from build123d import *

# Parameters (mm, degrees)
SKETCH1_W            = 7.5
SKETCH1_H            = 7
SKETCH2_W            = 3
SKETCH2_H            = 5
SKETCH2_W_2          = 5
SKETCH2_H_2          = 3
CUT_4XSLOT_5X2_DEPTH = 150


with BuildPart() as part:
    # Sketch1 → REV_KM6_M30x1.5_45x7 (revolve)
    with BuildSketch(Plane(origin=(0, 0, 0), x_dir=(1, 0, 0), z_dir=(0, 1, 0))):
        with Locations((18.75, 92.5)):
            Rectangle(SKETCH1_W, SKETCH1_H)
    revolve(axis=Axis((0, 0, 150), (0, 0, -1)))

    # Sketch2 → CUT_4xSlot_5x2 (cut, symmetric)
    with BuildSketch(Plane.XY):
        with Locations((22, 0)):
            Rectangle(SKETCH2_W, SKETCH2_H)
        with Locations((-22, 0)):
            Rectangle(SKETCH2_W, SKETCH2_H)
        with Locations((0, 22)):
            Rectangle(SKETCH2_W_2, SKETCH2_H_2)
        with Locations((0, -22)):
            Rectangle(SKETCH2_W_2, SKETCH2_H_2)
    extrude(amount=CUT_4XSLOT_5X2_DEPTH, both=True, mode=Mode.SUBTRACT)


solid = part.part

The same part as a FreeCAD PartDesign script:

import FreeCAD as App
import Part
import Sketcher
Q = App.Units.Quantity

doc = App.newDocument("Part")
body = doc.addObject("PartDesign::Body", "Body")

# Sketch on XZ plane
sketch1 = body.newObject("Sketcher::SketchObject", "Sketch")
sketch1.AttachmentSupport = (doc.getObject("XZ_Plane"), [""])
sketch1.MapMode = "FlatFace"
sketch1.addGeometry(Part.LineSegment(App.Vector(15, -96, 0), App.Vector(15, -89, 0)), False)
sketch1.addGeometry(Part.LineSegment(App.Vector(15, -89, 0), App.Vector(22, -89, 0)), False)
sketch1.addGeometry(Part.LineSegment(App.Vector(22, -89, 0), App.Vector(22, -96, 0)), False)
sketch1.addGeometry(Part.LineSegment(App.Vector(22, -96, 0), App.Vector(15, -96, 0)), False)
sketch1.addConstraint(Sketcher.Constraint("Coincident", 0, 2, 1, 1))
sketch1.addConstraint(Sketcher.Constraint("Coincident", 1, 2, 2, 1))
sketch1.addConstraint(Sketcher.Constraint("Coincident", 2, 2, 3, 1))
sketch1.addConstraint(Sketcher.Constraint("Coincident", 3, 2, 0, 1))
sketch1.addConstraint(Sketcher.Constraint("Vertical", 0))
sketch1.addConstraint(Sketcher.Constraint("Horizontal", 1))
sketch1.addConstraint(Sketcher.Constraint("Vertical", 2))
sketch1.addConstraint(Sketcher.Constraint("Horizontal", 3))
sketch1.addConstraint(Sketcher.Constraint("DistanceY", 0, 1, 0, 2, Q("7 mm")))
sketch1.addConstraint(Sketcher.Constraint("DistanceX", 1, 1, 1, 2, Q("7.5 mm")))
sketch1.addConstraint(Sketcher.Constraint("DistanceX", -1, 1, 0, 2, Q("15 mm")))
sketch1.addConstraint(Sketcher.Constraint("DistanceY", 0, 2, -1, 1, Q("89 mm")))
revolution = body.newObject("PartDesign::Revolution", "Revolution")
revolution.Profile = sketch1
revolution.ReferenceAxis = (sketch1, ["V_Axis"])
revolution.Angle = 360

# Sketch on XY plane
sketch2 = body.newObject("Sketcher::SketchObject", "Sketch001")
sketch2.AttachmentSupport = (doc.getObject("XY_Plane"), [""])
sketch2.MapMode = "FlatFace"
sketch2.addGeometry(Part.LineSegment(App.Vector(20.5, 2.5, 0), App.Vector(20.5, -2.5, 0)), False)
sketch2.addGeometry(Part.LineSegment(App.Vector(20.5, -2.5, 0), App.Vector(23.5, -2.5, 0)), False)
sketch2.addGeometry(Part.LineSegment(App.Vector(23.5, -2.5, 0), App.Vector(23.5, 2.5, 0)), False)
sketch2.addGeometry(Part.LineSegment(App.Vector(23.5, 2.5, 0), App.Vector(20.5, 2.5, 0)), False)
sketch2.addGeometry(Part.LineSegment(App.Vector(-23.5, 2.5, 0), App.Vector(-23.5, -2.5, 0)), False)
sketch2.addGeometry(Part.LineSegment(App.Vector(-23.5, -2.5, 0), App.Vector(-20.5, -2.5, 0)), False)
sketch2.addGeometry(Part.LineSegment(App.Vector(-20.5, -2.5, 0), App.Vector(-20.5, 2.5, 0)), False)
sketch2.addGeometry(Part.LineSegment(App.Vector(-20.5, 2.5, 0), App.Vector(-23.5, 2.5, 0)), False)
sketch2.addGeometry(Part.LineSegment(App.Vector(-2.5, 23.5, 0), App.Vector(-2.5, 20.5, 0)), False)
sketch2.addGeometry(Part.LineSegment(App.Vector(-2.5, 20.5, 0), App.Vector(2.5, 20.5, 0)), False)
sketch2.addGeometry(Part.LineSegment(App.Vector(2.5, 20.5, 0), App.Vector(2.5, 23.5, 0)), False)
sketch2.addGeometry(Part.LineSegment(App.Vector(2.5, 23.5, 0), App.Vector(-2.5, 23.5, 0)), False)
sketch2.addGeometry(Part.LineSegment(App.Vector(-2.5, -20.5, 0), App.Vector(-2.5, -23.5, 0)), False)
sketch2.addGeometry(Part.LineSegment(App.Vector(-2.5, -23.5, 0), App.Vector(2.5, -23.5, 0)), False)
sketch2.addGeometry(Part.LineSegment(App.Vector(2.5, -23.5, 0), App.Vector(2.5, -20.5, 0)), False)
sketch2.addGeometry(Part.LineSegment(App.Vector(2.5, -20.5, 0), App.Vector(-2.5, -20.5, 0)), False)
sketch2.addConstraint(Sketcher.Constraint("Coincident", 0, 2, 1, 1))
sketch2.addConstraint(Sketcher.Constraint("Coincident", 1, 2, 2, 1))
sketch2.addConstraint(Sketcher.Constraint("Coincident", 2, 2, 3, 1))
sketch2.addConstraint(Sketcher.Constraint("Coincident", 3, 2, 0, 1))
sketch2.addConstraint(Sketcher.Constraint("Coincident", 4, 2, 5, 1))
sketch2.addConstraint(Sketcher.Constraint("Coincident", 5, 2, 6, 1))
sketch2.addConstraint(Sketcher.Constraint("Coincident", 6, 2, 7, 1))
sketch2.addConstraint(Sketcher.Constraint("Coincident", 7, 2, 4, 1))
sketch2.addConstraint(Sketcher.Constraint("Coincident", 8, 2, 9, 1))
sketch2.addConstraint(Sketcher.Constraint("Coincident", 9, 2, 10, 1))
sketch2.addConstraint(Sketcher.Constraint("Coincident", 10, 2, 11, 1))
sketch2.addConstraint(Sketcher.Constraint("Coincident", 11, 2, 8, 1))
sketch2.addConstraint(Sketcher.Constraint("Coincident", 12, 2, 13, 1))
sketch2.addConstraint(Sketcher.Constraint("Coincident", 13, 2, 14, 1))
sketch2.addConstraint(Sketcher.Constraint("Coincident", 14, 2, 15, 1))
sketch2.addConstraint(Sketcher.Constraint("Coincident", 15, 2, 12, 1))
sketch2.addConstraint(Sketcher.Constraint("Vertical", 0))
sketch2.addConstraint(Sketcher.Constraint("Horizontal", 1))
sketch2.addConstraint(Sketcher.Constraint("Vertical", 2))
sketch2.addConstraint(Sketcher.Constraint("Horizontal", 3))
sketch2.addConstraint(Sketcher.Constraint("Vertical", 4))
sketch2.addConstraint(Sketcher.Constraint("Horizontal", 5))
sketch2.addConstraint(Sketcher.Constraint("Vertical", 6))
sketch2.addConstraint(Sketcher.Constraint("Horizontal", 7))
sketch2.addConstraint(Sketcher.Constraint("Vertical", 8))
sketch2.addConstraint(Sketcher.Constraint("Horizontal", 9))
sketch2.addConstraint(Sketcher.Constraint("Vertical", 10))
sketch2.addConstraint(Sketcher.Constraint("Horizontal", 11))
sketch2.addConstraint(Sketcher.Constraint("Vertical", 12))
sketch2.addConstraint(Sketcher.Constraint("Horizontal", 13))
sketch2.addConstraint(Sketcher.Constraint("Vertical", 14))
sketch2.addConstraint(Sketcher.Constraint("Horizontal", 15))
sketch2.addConstraint(Sketcher.Constraint("Symmetric", 2, 2, 4, 2, -1, 1))
sketch2.addConstraint(Sketcher.Constraint("Symmetric", 0, 2, 6, 2, -1, 1))
sketch2.addConstraint(Sketcher.Constraint("Symmetric", 10, 2, 12, 2, -1, 1))
sketch2.addConstraint(Sketcher.Constraint("Symmetric", 8, 2, 14, 2, -1, 1))
sketch2.addConstraint(Sketcher.Constraint("Horizontal", 1, 2, 4, 2))
sketch2.addConstraint(Sketcher.Constraint("Vertical", 11, 2, 12, 2))
sketch2.addConstraint(Sketcher.Constraint("Equal", 15, 0))
sketch2.addConstraint(Sketcher.Constraint("Equal", 7, 8))
sketch2.addConstraint(Sketcher.Constraint("DistanceX", 1, 1, 1, 2, Q("3 mm")))
sketch2.addConstraint(Sketcher.Constraint("DistanceX", 9, 1, 9, 2, Q("5 mm")))
sketch2.addConstraint(Sketcher.Constraint("DistanceX", 4, 2, 0, 2, Q("44 mm")))
sketch2.addConstraint(Sketcher.Constraint("DistanceY", 6, 2, 8, 2, Q("18 mm")))
pocket1 = body.newObject("PartDesign::Pocket", "Pocket")
pocket1.Profile = sketch2
pocket1.Length = 300
pocket1.Midplane = True

doc.recompute()
